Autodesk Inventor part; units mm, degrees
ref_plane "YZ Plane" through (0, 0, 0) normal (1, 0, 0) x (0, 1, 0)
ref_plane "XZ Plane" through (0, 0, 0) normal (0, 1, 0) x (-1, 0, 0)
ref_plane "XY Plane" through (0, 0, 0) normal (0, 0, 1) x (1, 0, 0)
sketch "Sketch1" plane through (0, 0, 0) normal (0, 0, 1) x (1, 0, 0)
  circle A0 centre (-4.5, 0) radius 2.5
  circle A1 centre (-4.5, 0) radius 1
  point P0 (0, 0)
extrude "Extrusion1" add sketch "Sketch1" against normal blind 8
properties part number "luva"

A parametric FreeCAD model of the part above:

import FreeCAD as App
import Part
import Sketcher
Q = App.Units.Quantity

doc = App.newDocument("Part")
params = doc.addObject("Spreadsheet::Sheet", "Params")
for row, (alias, value) in enumerate([
    ("sketch1_diameter", "5 mm"),
    ("sketch1_diameter2", "2 mm"),
    ("pad1_length", "8 mm"),
], start=1):
    params.set(f"A{row}", alias)
    params.set(f"B{row}", "=" + value)
    params.setAlias(f"B{row}", alias)

body = doc.addObject("PartDesign::Body", "Body")

sketch1 = body.newObject("Sketcher::SketchObject", "Sketch")
sketch1.AttachmentSupport = (doc.getObject("XY_Plane"), [""])
sketch1.MapMode = "FlatFace"
sketch1.addGeometry([
    Part.Circle(App.Vector(-4.5, 0, 0), App.Vector(0, 0, 1), 2.5),
    Part.Circle(App.Vector(-4.5, 0, 0), App.Vector(0, 0, 1), 1),
], False)
sketch1.addConstraint([
    Sketcher.Constraint("Coincident", 1, 3, 0, 3),
    Sketcher.Constraint("PointOnObject", 0, 3, -1),
    Sketcher.Constraint("Diameter", 0, Q("5 mm")),
    Sketcher.Constraint("Diameter", 1, Q("2 mm")),
    Sketcher.Constraint("DistanceX", 0, 3, -1, 1, Q("4.5 mm")),
])
sketch1.setExpression("Constraints[2]", "Params.sketch1_diameter")
sketch1.setExpression("Constraints[3]", "Params.sketch1_diameter2")
pad1 = body.newObject("PartDesign::Pad", "Pad")
pad1.Profile = sketch1
pad1.setExpression("Length", "Params.pad1_length")
pad1.Reversed = True

doc.recompute()
